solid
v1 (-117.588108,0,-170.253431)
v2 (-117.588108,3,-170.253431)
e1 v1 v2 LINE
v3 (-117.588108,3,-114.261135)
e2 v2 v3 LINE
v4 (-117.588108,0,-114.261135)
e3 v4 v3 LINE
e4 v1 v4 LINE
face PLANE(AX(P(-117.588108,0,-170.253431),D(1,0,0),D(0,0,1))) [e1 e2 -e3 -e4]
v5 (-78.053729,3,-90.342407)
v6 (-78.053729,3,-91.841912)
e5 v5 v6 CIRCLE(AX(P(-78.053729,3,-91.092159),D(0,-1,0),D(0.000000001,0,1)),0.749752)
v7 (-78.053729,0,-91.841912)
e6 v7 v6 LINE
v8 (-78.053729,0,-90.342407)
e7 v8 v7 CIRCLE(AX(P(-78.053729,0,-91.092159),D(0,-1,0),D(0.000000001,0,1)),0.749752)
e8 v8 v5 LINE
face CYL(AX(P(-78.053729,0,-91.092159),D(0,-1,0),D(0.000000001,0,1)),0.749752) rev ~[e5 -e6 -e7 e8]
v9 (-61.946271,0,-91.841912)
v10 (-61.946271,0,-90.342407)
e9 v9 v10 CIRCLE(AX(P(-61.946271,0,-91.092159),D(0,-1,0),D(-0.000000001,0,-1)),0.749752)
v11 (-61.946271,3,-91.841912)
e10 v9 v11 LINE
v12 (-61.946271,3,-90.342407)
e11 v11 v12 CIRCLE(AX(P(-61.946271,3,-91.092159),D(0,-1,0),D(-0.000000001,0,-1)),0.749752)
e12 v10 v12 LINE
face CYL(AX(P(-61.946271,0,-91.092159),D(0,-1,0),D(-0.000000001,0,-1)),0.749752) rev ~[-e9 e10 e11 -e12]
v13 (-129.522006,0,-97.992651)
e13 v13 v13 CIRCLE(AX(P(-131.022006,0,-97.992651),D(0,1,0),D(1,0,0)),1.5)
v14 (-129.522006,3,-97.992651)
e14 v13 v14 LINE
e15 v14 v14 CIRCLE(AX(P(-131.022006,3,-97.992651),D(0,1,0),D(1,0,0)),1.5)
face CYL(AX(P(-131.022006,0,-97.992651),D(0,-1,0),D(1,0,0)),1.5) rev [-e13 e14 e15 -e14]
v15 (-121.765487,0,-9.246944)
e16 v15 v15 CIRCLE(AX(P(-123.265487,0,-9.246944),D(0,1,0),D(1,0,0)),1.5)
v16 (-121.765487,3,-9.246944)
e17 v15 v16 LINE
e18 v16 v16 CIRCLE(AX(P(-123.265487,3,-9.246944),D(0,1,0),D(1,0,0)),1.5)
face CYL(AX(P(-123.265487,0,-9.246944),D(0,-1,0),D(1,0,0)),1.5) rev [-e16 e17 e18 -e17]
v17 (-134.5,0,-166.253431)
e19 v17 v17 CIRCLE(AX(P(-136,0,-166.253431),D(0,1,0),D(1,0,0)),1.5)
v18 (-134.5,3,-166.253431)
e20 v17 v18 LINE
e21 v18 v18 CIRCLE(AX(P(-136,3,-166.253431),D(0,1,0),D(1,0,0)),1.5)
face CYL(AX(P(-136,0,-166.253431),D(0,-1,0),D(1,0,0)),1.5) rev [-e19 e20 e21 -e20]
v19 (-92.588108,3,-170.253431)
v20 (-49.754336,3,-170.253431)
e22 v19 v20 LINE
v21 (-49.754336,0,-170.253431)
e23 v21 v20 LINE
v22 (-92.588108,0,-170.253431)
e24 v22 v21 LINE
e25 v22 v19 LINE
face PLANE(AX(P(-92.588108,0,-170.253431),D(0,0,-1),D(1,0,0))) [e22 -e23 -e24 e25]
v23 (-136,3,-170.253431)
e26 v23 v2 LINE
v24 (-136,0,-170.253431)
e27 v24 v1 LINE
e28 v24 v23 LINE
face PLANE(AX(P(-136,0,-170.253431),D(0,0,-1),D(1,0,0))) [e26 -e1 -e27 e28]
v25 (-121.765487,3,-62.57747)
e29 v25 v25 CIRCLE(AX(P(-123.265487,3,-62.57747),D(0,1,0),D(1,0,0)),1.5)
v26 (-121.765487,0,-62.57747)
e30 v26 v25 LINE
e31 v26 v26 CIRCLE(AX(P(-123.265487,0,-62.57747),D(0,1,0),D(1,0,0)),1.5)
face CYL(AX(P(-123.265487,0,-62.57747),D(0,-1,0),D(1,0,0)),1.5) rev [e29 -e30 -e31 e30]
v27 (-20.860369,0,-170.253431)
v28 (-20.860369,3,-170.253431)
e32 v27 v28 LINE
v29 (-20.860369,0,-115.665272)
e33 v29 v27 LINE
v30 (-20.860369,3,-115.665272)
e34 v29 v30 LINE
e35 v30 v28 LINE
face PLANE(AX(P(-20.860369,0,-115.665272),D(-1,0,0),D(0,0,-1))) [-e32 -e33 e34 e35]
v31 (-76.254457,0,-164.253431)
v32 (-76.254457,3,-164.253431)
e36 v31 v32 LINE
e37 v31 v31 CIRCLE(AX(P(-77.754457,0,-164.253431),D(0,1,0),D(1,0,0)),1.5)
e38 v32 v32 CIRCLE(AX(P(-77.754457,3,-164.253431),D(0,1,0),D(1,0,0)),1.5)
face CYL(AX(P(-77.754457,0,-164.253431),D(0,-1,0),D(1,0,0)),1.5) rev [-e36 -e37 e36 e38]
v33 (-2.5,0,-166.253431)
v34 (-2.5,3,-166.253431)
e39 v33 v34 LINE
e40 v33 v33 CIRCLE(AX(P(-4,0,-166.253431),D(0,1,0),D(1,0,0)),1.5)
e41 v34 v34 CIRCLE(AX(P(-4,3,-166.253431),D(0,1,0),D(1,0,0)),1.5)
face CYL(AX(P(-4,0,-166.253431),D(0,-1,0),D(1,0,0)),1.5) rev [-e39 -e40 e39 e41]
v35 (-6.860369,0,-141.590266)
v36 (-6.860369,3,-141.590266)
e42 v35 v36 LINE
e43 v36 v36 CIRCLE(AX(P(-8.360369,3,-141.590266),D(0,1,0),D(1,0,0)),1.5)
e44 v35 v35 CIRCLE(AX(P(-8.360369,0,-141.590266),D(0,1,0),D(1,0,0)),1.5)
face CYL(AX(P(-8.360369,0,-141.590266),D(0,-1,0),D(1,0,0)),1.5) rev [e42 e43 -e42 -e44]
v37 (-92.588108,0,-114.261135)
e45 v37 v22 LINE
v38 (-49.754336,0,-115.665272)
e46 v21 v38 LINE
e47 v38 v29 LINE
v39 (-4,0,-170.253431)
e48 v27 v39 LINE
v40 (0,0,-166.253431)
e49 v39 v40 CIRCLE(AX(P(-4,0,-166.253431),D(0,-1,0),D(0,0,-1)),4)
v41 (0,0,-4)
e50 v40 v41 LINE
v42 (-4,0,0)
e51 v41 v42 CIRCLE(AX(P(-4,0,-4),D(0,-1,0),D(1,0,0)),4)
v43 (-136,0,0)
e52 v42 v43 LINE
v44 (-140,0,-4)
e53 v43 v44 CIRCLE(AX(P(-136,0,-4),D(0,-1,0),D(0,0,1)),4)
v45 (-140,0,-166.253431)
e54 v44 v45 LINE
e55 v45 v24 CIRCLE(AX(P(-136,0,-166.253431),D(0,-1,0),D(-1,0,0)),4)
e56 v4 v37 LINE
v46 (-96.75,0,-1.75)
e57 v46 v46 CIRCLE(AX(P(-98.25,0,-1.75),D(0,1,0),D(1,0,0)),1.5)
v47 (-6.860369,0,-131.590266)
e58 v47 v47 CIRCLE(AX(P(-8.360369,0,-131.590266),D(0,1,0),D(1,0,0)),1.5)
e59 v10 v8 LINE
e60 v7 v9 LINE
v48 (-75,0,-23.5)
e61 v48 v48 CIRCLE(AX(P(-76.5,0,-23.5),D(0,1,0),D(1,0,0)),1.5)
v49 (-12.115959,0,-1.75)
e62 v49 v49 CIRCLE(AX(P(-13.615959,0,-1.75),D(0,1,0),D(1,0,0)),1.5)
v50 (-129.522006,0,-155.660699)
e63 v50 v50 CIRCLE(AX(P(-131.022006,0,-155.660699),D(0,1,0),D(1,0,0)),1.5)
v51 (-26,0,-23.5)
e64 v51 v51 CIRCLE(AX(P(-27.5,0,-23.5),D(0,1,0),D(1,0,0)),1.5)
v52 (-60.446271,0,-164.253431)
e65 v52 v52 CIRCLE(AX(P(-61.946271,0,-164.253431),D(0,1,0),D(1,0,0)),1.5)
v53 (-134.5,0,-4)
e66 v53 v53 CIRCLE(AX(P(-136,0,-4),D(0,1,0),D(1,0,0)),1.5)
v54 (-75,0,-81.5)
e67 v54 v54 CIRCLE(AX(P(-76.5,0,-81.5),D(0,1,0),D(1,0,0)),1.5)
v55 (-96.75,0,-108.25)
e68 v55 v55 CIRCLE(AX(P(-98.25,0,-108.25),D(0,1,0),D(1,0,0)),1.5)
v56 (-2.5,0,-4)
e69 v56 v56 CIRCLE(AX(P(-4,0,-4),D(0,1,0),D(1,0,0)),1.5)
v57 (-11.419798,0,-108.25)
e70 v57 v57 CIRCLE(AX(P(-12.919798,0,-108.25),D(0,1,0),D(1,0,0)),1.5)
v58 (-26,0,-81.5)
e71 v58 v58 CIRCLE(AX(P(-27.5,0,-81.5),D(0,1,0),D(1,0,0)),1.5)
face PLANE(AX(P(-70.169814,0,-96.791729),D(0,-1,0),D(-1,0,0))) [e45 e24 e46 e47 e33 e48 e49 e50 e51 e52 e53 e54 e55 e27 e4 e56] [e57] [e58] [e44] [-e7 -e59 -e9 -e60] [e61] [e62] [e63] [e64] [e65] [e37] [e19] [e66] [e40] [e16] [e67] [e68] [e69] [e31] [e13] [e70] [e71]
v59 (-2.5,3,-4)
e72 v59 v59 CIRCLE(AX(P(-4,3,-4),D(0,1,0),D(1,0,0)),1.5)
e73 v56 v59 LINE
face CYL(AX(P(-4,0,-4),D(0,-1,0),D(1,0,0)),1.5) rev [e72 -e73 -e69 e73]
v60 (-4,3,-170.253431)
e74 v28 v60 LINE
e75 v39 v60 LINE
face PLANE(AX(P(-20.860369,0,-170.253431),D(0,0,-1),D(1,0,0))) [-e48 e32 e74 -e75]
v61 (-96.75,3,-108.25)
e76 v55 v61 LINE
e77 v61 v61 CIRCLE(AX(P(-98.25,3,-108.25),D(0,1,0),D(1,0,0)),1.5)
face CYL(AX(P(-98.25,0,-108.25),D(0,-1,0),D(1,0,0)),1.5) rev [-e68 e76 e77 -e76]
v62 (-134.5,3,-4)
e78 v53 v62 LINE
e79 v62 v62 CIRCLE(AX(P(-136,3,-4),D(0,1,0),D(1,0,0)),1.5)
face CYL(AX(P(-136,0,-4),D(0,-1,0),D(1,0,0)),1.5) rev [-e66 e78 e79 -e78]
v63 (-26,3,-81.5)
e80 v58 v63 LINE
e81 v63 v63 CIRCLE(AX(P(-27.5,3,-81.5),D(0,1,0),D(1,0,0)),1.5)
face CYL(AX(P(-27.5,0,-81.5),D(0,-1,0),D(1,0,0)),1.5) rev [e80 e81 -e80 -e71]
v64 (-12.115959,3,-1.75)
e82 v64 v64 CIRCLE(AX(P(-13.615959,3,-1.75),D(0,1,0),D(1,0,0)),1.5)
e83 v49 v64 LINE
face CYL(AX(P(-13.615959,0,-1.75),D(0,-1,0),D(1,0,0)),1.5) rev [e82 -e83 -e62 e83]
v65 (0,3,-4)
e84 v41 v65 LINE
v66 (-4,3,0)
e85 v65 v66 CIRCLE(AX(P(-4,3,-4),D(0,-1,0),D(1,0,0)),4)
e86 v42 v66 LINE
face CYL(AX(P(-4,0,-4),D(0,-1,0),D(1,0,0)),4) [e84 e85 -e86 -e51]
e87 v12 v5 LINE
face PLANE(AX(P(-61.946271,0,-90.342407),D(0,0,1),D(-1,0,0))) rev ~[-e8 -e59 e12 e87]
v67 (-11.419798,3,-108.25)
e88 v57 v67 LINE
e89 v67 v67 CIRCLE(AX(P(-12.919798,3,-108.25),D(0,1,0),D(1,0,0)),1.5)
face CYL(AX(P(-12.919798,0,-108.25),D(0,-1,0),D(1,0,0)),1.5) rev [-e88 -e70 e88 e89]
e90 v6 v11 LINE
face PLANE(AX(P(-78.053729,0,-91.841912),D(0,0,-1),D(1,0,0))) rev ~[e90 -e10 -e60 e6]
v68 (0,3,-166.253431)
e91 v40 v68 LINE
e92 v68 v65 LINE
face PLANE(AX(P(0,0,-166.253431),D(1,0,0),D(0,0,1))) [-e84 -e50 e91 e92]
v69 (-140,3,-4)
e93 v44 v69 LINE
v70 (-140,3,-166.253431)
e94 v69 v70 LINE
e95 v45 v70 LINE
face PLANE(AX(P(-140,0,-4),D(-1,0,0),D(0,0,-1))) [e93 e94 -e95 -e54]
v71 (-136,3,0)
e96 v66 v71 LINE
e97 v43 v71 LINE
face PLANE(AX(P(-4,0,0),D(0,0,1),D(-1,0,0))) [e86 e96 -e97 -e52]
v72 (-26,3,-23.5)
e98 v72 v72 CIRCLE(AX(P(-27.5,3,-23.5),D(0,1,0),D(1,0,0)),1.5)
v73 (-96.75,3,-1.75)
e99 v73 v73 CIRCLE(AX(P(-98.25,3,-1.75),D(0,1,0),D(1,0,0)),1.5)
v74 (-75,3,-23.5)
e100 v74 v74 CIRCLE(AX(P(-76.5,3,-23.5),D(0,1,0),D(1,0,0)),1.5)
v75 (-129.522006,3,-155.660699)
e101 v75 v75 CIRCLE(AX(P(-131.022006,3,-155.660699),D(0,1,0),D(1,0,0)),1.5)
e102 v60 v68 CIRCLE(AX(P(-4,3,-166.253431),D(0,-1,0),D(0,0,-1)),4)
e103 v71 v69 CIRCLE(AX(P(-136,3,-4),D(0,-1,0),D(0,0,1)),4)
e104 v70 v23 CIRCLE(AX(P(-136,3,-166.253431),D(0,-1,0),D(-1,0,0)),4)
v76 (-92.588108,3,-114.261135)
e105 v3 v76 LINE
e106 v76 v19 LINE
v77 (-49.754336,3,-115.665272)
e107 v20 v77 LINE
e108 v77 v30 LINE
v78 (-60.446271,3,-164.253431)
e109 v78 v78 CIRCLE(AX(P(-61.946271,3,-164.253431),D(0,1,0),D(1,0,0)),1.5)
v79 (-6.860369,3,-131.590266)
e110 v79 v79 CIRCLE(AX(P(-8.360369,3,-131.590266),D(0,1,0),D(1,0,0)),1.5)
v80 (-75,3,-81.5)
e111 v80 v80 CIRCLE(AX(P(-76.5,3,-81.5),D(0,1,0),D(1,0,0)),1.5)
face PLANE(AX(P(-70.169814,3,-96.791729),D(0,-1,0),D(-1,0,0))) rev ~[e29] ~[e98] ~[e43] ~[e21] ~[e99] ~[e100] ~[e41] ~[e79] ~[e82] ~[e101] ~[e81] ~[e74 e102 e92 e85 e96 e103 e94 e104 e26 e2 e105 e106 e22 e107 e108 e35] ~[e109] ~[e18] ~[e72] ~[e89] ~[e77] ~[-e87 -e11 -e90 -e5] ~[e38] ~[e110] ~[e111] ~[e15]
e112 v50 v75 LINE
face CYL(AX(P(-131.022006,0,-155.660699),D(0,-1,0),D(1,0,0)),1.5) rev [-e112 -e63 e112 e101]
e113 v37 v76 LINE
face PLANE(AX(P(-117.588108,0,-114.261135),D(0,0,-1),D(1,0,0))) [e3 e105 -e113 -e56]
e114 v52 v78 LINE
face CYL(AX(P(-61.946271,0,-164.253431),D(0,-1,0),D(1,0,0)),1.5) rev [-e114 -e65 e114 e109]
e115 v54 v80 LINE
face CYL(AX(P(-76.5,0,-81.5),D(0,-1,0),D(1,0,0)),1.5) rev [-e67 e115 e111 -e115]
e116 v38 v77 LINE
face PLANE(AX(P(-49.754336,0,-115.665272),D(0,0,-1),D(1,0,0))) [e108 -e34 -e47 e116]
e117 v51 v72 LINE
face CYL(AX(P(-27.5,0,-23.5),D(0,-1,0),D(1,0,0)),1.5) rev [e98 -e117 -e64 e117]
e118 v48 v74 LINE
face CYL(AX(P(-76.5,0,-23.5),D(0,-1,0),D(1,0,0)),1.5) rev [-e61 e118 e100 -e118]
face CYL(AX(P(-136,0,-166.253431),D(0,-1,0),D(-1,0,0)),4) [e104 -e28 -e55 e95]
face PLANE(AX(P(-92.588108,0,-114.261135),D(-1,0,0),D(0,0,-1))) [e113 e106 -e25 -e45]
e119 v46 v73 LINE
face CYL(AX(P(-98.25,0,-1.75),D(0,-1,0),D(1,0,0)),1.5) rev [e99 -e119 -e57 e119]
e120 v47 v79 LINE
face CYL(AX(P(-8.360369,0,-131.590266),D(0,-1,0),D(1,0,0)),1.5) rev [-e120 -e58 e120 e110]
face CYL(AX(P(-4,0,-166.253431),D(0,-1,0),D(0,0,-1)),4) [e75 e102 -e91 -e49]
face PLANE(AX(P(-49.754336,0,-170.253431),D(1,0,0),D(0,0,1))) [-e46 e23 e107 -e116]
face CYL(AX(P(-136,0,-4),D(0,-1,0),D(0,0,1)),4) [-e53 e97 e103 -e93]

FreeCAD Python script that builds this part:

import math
import FreeCAD as App
import Part
import Sketcher

V = App.Vector
Q = App.Units.Quantity

doc = App.newDocument("Part")
params = doc.addObject("Spreadsheet::Sheet", "Params")
for row, (alias, value) in enumerate([
    ("sketch1_diameter", "3 mm"),
    ("sketch1_radius", "4 mm"),
    ("sketch1_width", "132 mm"),
    ("sketch1_width2", "25 mm"),
    ("pad1_length", "3 mm"),
], start=1):
    params.set(f"A{row}", alias)
    params.set(f"B{row}", "=" + value)
    params.setAlias(f"B{row}", alias)

body = doc.addObject("PartDesign::Body", "Body")

# Sketch on XZ plane
sketch1 = doc.addObject("Sketcher::SketchObject", "Sketch")
body.addObject(sketch1)
sketch1.AttachmentSupport = (doc.XZ_Plane, [""])
sketch1.MapMode = "FlatFace"
sketch1.addGeometry([
    Part.LineSegment(V(-136, 0, 0), V(-4, 0, 0)),  # 0
    Part.ArcOfCircle(Part.Circle(V(-4, -4, 0), V(0, 0, 1), 4), math.radians(0), math.radians(90)),  # 1
    Part.LineSegment(V(0, -4, 0), V(0, -166.3, 0)),  # 2
    Part.ArcOfCircle(Part.Circle(V(-4, -166.3, 0), V(0, 0, 1), 4), math.radians(-90), math.radians(0)),  # 3
    Part.LineSegment(V(-4, -170.3, 0), V(-20.9, -170.3, 0)),  # 4
    Part.LineSegment(V(-20.9, -170.3, 0), V(-20.9, -115.7, 0)),  # 5
    Part.LineSegment(V(-20.9, -115.7, 0), V(-49.8, -115.7, 0)),  # 6
    Part.LineSegment(V(-49.8, -115.7, 0), V(-49.8, -170.3, 0)),  # 7
    Part.LineSegment(V(-49.8, -170.3, 0), V(-92.6, -170.3, 0)),  # 8
    Part.LineSegment(V(-92.6, -170.3, 0), V(-92.6, -114.3, 0)),  # 9
    Part.LineSegment(V(-92.6, -114.3, 0), V(-117.6, -114.3, 0)),  # 10
    Part.LineSegment(V(-117.6, -114.3, 0), V(-117.6, -170.3, 0)),  # 11
    Part.LineSegment(V(-117.6, -170.3, 0), V(-136, -170.3, 0)),  # 12
    Part.ArcOfCircle(Part.Circle(V(-136, -166.3, 0), V(0, 0, 1), 4), math.radians(180), math.radians(270)),  # 13
    Part.LineSegment(V(-140, -166.3, 0), V(-140, -4, 0)),  # 14
    Part.ArcOfCircle(Part.Circle(V(-136, -4, 0), V(0, 0, 1), 4), math.radians(90), math.radians(180)),  # 15
    Part.Circle(V(-4, -4, 0), V(0, 0, 1), 1.5),  # 16
    Part.Circle(V(-13.6, -1.8, 0), V(0, 0, 1), 1.5),  # 17
    Part.Circle(V(-27.5, -23.5, 0), V(0, 0, 1), 1.5),  # 18
    Part.Circle(V(-27.5, -81.5, 0), V(0, 0, 1), 1.5),  # 19
    Part.Circle(V(-98.2, -1.8, 0), V(0, 0, 1), 1.5),  # 20
    Part.Circle(V(-76.5, -23.5, 0), V(0, 0, 1), 1.5),  # 21
    Part.Circle(V(-123.3, -9.2, 0), V(0, 0, 1), 1.5),  # 22
    Part.Circle(V(-136, -4, 0), V(0, 0, 1), 1.5),  # 23
    Part.Circle(V(-76.5, -81.5, 0), V(0, 0, 1), 1.5),  # 24
    Part.Circle(V(-123.3, -62.6, 0), V(0, 0, 1), 1.5),  # 25
    Part.Circle(V(-12.9, -108.2, 0), V(0, 0, 1), 1.5),  # 26
    Part.Circle(V(-8.4, -131.6, 0), V(0, 0, 1), 1.5),  # 27
    Part.Circle(V(-8.4, -141.6, 0), V(0, 0, 1), 1.5),  # 28
    Part.Circle(V(-4, -166.3, 0), V(0, 0, 1), 1.5),  # 29
    Part.Circle(V(-61.9, -164.3, 0), V(0, 0, 1), 1.5),  # 30
    Part.LineSegment(V(-78.1, -91.8, 0), V(-61.9, -91.8, 0)),  # 31
    Part.ArcOfCircle(Part.Circle(V(-61.9, -91.1, 0), V(0, 0, 1), 0.7), math.radians(-90), math.radians(90)),  # 32
    Part.LineSegment(V(-61.9, -90.3, 0), V(-78.1, -90.3, 0)),  # 33
    Part.ArcOfCircle(Part.Circle(V(-78.1, -91.1, 0), V(0, 0, 1), 0.7), math.radians(90), math.radians(270)),  # 34
    Part.Circle(V(-98.2, -108.2, 0), V(0, 0, 1), 1.5),  # 35
    Part.Circle(V(-131, -98, 0), V(0, 0, 1), 1.5),  # 36
    Part.Circle(V(-77.8, -164.3, 0), V(0, 0, 1), 1.5),  # 37
    Part.Circle(V(-131, -155.7, 0), V(0, 0, 1), 1.5),  # 38
    Part.Circle(V(-136, -166.3, 0), V(0, 0, 1), 1.5),  # 39
], False)
sketch1.addConstraint([
    Sketcher.Constraint("Tangent", 0, 2, 1, 2),
    Sketcher.Constraint("Tangent", 1, 1, 2, 1),
    Sketcher.Constraint("Tangent", 2, 2, 3, 2),
    Sketcher.Constraint("Tangent", 3, 1, 4, 1),
    Sketcher.Constraint("Coincident", 4, 2, 5, 1),
    Sketcher.Constraint("Coincident", 5, 2, 6, 1),
    Sketcher.Constraint("Coincident", 6, 2, 7, 1),
    Sketcher.Constraint("Coincident", 7, 2, 8, 1),
    Sketcher.Constraint("Coincident", 8, 2, 9, 1),
    Sketcher.Constraint("Coincident", 9, 2, 10, 1),
    Sketcher.Constraint("Coincident", 10, 2, 11, 1),
    Sketcher.Constraint("Coincident", 11, 2, 12, 1),
    Sketcher.Constraint("Tangent", 12, 2, 13, 2),
    Sketcher.Constraint("Tangent", 13, 1, 14, 1),
    Sketcher.Constraint("Tangent", 14, 2, 15, 2),
    Sketcher.Constraint("Tangent", 15, 1, 0, 1),
    Sketcher.Constraint("Tangent", 31, 2, 32, 1),
    Sketcher.Constraint("Tangent", 32, 2, 33, 1),
    Sketcher.Constraint("Tangent", 33, 2, 34, 1),
    Sketcher.Constraint("Tangent", 34, 2, 31, 1),
    Sketcher.Constraint("Horizontal", 0),
    Sketcher.Constraint("Vertical", 2),
    Sketcher.Constraint("Horizontal", 4),
    Sketcher.Constraint("Vertical", 5),
    Sketcher.Constraint("Horizontal", 6),
    Sketcher.Constraint("Vertical", 7),
    Sketcher.Constraint("Horizontal", 8),
    Sketcher.Constraint("Vertical", 9),
    Sketcher.Constraint("Horizontal", 10),
    Sketcher.Constraint("Vertical", 11),
    Sketcher.Constraint("Horizontal", 12),
    Sketcher.Constraint("Vertical", 14),
    Sketcher.Constraint("Horizontal", 31),
    Sketcher.Constraint("Horizontal", 33),
    Sketcher.Constraint("Coincident", 16, 3, 1, 3),
    Sketcher.Constraint("Coincident", 23, 3, 15, 3),
    Sketcher.Constraint("Coincident", 29, 3, 3, 3),
    Sketcher.Constraint("Coincident", 39, 3, 13, 3),
    Sketcher.Constraint("Equal", 1, 3),
    Sketcher.Constraint("Equal", 3, 13),
    Sketcher.Constraint("Equal", 13, 15),
    Sketcher.Constraint("Equal", 16, 17),
    Sketcher.Constraint("Equal", 17, 18),
    Sketcher.Constraint("Equal", 18, 19),
    Sketcher.Constraint("Equal", 19, 20),
    Sketcher.Constraint("Equal", 20, 21),
    Sketcher.Constraint("Equal", 21, 22),
    Sketcher.Constraint("Equal", 22, 23),
    Sketcher.Constraint("Equal", 23, 24),
    Sketcher.Constraint("Equal", 24, 25),
    Sketcher.Constraint("Equal", 25, 26),
    Sketcher.Constraint("Equal", 26, 27),
    Sketcher.Constraint("Equal", 27, 28),
    Sketcher.Constraint("Equal", 28, 29),
    Sketcher.Constraint("Equal", 29, 30),
    Sketcher.Constraint("Equal", 30, 35),
    Sketcher.Constraint("Equal", 35, 36),
    Sketcher.Constraint("Equal", 36, 37),
    Sketcher.Constraint("Equal", 37, 38),
    Sketcher.Constraint("Equal", 38, 39),
    Sketcher.Constraint("PointOnObject", 0, 2, -1),
    Sketcher.Constraint("PointOnObject", 1, 1, -2),
    Sketcher.Constraint("Horizontal", 3, 3, 13, 3),
    Sketcher.Constraint("Horizontal", 17, 3, 20, 3),
    Sketcher.Constraint("Horizontal", 18, 3, 21, 3),
    Sketcher.Constraint("Horizontal", 19, 3, 24, 3),
    Sketcher.Constraint("Horizontal", 26, 3, 35, 3),
    Sketcher.Constraint("Horizontal", 30, 3, 37, 3),
    Sketcher.Constraint("Horizontal", 4, 2, 7, 2),
    Sketcher.Constraint("Vertical", 18, 3, 19, 3),
    Sketcher.Constraint("Vertical", 21, 3, 24, 3),
    Sketcher.Constraint("Vertical", 22, 3, 25, 3),
    Sketcher.Constraint("Vertical", 27, 3, 28, 3),
    Sketcher.Constraint("Vertical", 30, 3, 32, 3),
    Sketcher.Constraint("Vertical", 20, 3, 35, 3),
    Sketcher.Constraint("Vertical", 36, 3, 38, 3),
    Sketcher.Constraint("Diameter", 16, Q("3 mm")),
    Sketcher.Constraint("Radius", 1, Q("4 mm")),
    Sketcher.Constraint("DistanceX", 0, 1, 0, 2, Q("132 mm")),
    Sketcher.Constraint("DistanceX", 10, 2, 10, 1, Q("25 mm")),
    Sketcher.Constraint("DistanceY", 19, 3, 18, 3, Q("58 mm")),
    Sketcher.Constraint("DistanceX", 21, 3, 18, 3, Q("49 mm")),
    Sketcher.Constraint("DistanceY", 28, 3, 27, 3, Q("10 mm")),
    Sketcher.Constraint("DistanceY", 29, 3, 30, 3, Q("2 mm")),
    Sketcher.Constraint("DistanceX", 18, 3, -1, 1, Q("27.5 mm")),
    Sketcher.Constraint("DistanceY", 18, 3, -1, 1, Q("23.5 mm")),
    Sketcher.Constraint("DistanceX", 4, 2, 28, 3, Q("12.5 mm")),
    Sketcher.Constraint("DistanceY", 17, 3, -1, 1, Q("1.75 mm")),
    Sketcher.Constraint("DistanceX", 20, 3, -1, 1, Q("98.25 mm")),
    Sketcher.Constraint("DistanceY", 26, 3, -1, 1, Q("108.25 mm")),
    Sketcher.Constraint("Radius", 32, Q("0.749752 mm")),
    Sketcher.Constraint("DistanceX", 4, 2, 4, 1, Q("16.860369 mm")),
    Sketcher.Constraint("DistanceX", 8, 2, 8, 1, Q("42.833771 mm")),
    Sketcher.Constraint("DistanceY", 2, 2, 2, 1, Q("162.253431 mm")),
    Sketcher.Constraint("DistanceY", 5, 1, 5, 2, Q("54.588159 mm")),
    Sketcher.Constraint("DistanceX", 26, 3, -1, 1, Q("12.919798 mm")),
    Sketcher.Constraint("DistanceY", 38, 3, -1, 1, Q("155.660699 mm")),
    Sketcher.Constraint("DistanceX", 38, 3, 8, 2, Q("38.433899 mm")),
    Sketcher.Constraint("DistanceX", 6, 2, 6, 1, Q("28.893967 mm")),
    Sketcher.Constraint("DistanceX", 31, 1, 31, 2, Q("16.107457 mm")),
    Sketcher.Constraint("DistanceY", 9, 1, 9, 2, Q("55.992296 mm")),
    Sketcher.Constraint("DistanceX", 17, 3, -1, 1, Q("13.615959 mm")),
    Sketcher.Constraint("DistanceY", 25, 3, -1, 1, Q("62.57747 mm")),
    Sketcher.Constraint("DistanceX", 30, 3, -1, 1, Q("61.946271 mm")),
    Sketcher.Constraint("DistanceY", 32, 3, -1, 1, Q("91.092159 mm")),
    Sketcher.Constraint("DistanceY", 36, 3, -1, 1, Q("97.992651 mm")),
    Sketcher.Constraint("DistanceX", 25, 3, 34, 3, Q("45.211758 mm")),
    Sketcher.Constraint("DistanceX", 37, 3, 28, 3, Q("69.394088 mm")),
    Sketcher.Constraint("DistanceY", 22, 3, -1, 1, Q("9.246944 mm")),
    Sketcher.Constraint("DistanceY", 27, 3, -1, 1, Q("131.590266 mm")),
])
sketch1.setExpression("Constraints[76]", "Params.sketch1_diameter")
sketch1.setExpression("Constraints[77]", "Params.sketch1_radius")
sketch1.setExpression("Constraints[78]", "Params.sketch1_width")
sketch1.setExpression("Constraints[79]", "Params.sketch1_width2")
pad1 = doc.addObject("PartDesign::Pad", "Pad")
body.addObject(pad1)
pad1.Profile = sketch1
pad1.setExpression("Length", "Params.pad1_length")
pad1.Reversed = True

doc.recompute()
